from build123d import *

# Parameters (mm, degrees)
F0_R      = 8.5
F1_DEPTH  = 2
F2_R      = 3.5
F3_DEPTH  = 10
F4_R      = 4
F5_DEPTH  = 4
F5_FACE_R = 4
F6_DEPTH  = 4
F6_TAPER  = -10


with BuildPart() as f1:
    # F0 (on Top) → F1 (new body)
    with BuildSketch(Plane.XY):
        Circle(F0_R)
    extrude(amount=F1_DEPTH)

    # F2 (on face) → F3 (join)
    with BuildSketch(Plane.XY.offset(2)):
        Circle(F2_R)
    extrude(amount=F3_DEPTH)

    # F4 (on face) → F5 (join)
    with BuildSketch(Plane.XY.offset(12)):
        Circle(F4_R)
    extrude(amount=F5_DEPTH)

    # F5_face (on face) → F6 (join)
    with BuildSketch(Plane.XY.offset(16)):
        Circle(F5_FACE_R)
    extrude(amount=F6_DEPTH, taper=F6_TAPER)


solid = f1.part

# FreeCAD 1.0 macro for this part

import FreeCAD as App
import Part
import Sketcher

V = App.Vector

doc = App.newDocument("Part")
body = doc.addObject("PartDesign::Body", "Body")

# Sketch on XY plane
sketch1 = doc.addObject("Sketcher::SketchObject", "Sketch")
body.addObject(sketch1)
sketch1.AttachmentSupport = (doc.XY_Plane, [""])
sketch1.MapMode = "FlatFace"
sketch1.addGeometry(Part.Circle(V(0, 0, 0), V(0, 0, 1), 8), False)
sketch1.addConstraint([
    Sketcher.Constraint("Coincident", 0, 3, -1, 1),
    Sketcher.Constraint("Diameter", 0, 17.0),
])
pad1 = doc.addObject("PartDesign::Pad", "Pad")
body.addObject(pad1)
pad1.Profile = sketch1
pad1.Length = 2

# Sketch on XY plane
sketch2 = doc.addObject("Sketcher::SketchObject", "Sketch001")
body.addObject(sketch2)
sketch2.AttachmentSupport = (doc.XY_Plane, [""])
sketch2.MapMode = "FlatFace"
sketch2.AttachmentOffset = App.Placement(V(0, 0, 2), App.Rotation())
sketch2.addGeometry(Part.Circle(V(0, 0, 0), V(0, 0, 1), 3.5), False)
sketch2.addConstraint([
    Sketcher.Constraint("Coincident", 0, 3, -1, 1),
    Sketcher.Constraint("Diameter", 0, 7.0),
])
pad2 = doc.addObject("PartDesign::Pad", "Pad001")
body.addObject(pad2)
pad2.Profile = sketch2
pad2.Length = 10

# Sketch on XY plane
sketch3 = doc.addObject("Sketcher::SketchObject", "Sketch002")
body.addObject(sketch3)
sketch3.AttachmentSupport = (doc.XY_Plane, [""])
sketch3.MapMode = "FlatFace"
sketch3.AttachmentOffset = App.Placement(V(0, 0, 12), App.Rotation())
sketch3.addGeometry(Part.Circle(V(0, 0, 0), V(0, 0, 1), 4), False)
sketch3.addConstraint([
    Sketcher.Constraint("Coincident", 0, 3, -1, 1),
    Sketcher.Constraint("Diameter", 0, 8.0),
])
pad3 = doc.addObject("PartDesign::Pad", "Pad002")
body.addObject(pad3)
pad3.Profile = sketch3
pad3.Length = 4

# Sketch on XY plane
sketch4 = doc.addObject("Sketcher::SketchObject", "Sketch003")
body.addObject(sketch4)
sketch4.AttachmentSupport = (doc.XY_Plane, [""])
sketch4.MapMode = "FlatFace"
sketch4.AttachmentOffset = App.Placement(V(0, 0, 16), App.Rotation())
sketch4.addGeometry(Part.Circle(V(0, 0, 0), V(0, 0, 1), 4), False)
sketch4.addConstraint([
    Sketcher.Constraint("Coincident", 0, 3, -1, 1),
    Sketcher.Constraint("Diameter", 0, 8.0),
])
pad4 = doc.addObject("PartDesign::Pad", "Pad003")
body.addObject(pad4)
pad4.Profile = sketch4
pad4.Length = 4
pad4.TaperAngle = 10

doc.recompute()
